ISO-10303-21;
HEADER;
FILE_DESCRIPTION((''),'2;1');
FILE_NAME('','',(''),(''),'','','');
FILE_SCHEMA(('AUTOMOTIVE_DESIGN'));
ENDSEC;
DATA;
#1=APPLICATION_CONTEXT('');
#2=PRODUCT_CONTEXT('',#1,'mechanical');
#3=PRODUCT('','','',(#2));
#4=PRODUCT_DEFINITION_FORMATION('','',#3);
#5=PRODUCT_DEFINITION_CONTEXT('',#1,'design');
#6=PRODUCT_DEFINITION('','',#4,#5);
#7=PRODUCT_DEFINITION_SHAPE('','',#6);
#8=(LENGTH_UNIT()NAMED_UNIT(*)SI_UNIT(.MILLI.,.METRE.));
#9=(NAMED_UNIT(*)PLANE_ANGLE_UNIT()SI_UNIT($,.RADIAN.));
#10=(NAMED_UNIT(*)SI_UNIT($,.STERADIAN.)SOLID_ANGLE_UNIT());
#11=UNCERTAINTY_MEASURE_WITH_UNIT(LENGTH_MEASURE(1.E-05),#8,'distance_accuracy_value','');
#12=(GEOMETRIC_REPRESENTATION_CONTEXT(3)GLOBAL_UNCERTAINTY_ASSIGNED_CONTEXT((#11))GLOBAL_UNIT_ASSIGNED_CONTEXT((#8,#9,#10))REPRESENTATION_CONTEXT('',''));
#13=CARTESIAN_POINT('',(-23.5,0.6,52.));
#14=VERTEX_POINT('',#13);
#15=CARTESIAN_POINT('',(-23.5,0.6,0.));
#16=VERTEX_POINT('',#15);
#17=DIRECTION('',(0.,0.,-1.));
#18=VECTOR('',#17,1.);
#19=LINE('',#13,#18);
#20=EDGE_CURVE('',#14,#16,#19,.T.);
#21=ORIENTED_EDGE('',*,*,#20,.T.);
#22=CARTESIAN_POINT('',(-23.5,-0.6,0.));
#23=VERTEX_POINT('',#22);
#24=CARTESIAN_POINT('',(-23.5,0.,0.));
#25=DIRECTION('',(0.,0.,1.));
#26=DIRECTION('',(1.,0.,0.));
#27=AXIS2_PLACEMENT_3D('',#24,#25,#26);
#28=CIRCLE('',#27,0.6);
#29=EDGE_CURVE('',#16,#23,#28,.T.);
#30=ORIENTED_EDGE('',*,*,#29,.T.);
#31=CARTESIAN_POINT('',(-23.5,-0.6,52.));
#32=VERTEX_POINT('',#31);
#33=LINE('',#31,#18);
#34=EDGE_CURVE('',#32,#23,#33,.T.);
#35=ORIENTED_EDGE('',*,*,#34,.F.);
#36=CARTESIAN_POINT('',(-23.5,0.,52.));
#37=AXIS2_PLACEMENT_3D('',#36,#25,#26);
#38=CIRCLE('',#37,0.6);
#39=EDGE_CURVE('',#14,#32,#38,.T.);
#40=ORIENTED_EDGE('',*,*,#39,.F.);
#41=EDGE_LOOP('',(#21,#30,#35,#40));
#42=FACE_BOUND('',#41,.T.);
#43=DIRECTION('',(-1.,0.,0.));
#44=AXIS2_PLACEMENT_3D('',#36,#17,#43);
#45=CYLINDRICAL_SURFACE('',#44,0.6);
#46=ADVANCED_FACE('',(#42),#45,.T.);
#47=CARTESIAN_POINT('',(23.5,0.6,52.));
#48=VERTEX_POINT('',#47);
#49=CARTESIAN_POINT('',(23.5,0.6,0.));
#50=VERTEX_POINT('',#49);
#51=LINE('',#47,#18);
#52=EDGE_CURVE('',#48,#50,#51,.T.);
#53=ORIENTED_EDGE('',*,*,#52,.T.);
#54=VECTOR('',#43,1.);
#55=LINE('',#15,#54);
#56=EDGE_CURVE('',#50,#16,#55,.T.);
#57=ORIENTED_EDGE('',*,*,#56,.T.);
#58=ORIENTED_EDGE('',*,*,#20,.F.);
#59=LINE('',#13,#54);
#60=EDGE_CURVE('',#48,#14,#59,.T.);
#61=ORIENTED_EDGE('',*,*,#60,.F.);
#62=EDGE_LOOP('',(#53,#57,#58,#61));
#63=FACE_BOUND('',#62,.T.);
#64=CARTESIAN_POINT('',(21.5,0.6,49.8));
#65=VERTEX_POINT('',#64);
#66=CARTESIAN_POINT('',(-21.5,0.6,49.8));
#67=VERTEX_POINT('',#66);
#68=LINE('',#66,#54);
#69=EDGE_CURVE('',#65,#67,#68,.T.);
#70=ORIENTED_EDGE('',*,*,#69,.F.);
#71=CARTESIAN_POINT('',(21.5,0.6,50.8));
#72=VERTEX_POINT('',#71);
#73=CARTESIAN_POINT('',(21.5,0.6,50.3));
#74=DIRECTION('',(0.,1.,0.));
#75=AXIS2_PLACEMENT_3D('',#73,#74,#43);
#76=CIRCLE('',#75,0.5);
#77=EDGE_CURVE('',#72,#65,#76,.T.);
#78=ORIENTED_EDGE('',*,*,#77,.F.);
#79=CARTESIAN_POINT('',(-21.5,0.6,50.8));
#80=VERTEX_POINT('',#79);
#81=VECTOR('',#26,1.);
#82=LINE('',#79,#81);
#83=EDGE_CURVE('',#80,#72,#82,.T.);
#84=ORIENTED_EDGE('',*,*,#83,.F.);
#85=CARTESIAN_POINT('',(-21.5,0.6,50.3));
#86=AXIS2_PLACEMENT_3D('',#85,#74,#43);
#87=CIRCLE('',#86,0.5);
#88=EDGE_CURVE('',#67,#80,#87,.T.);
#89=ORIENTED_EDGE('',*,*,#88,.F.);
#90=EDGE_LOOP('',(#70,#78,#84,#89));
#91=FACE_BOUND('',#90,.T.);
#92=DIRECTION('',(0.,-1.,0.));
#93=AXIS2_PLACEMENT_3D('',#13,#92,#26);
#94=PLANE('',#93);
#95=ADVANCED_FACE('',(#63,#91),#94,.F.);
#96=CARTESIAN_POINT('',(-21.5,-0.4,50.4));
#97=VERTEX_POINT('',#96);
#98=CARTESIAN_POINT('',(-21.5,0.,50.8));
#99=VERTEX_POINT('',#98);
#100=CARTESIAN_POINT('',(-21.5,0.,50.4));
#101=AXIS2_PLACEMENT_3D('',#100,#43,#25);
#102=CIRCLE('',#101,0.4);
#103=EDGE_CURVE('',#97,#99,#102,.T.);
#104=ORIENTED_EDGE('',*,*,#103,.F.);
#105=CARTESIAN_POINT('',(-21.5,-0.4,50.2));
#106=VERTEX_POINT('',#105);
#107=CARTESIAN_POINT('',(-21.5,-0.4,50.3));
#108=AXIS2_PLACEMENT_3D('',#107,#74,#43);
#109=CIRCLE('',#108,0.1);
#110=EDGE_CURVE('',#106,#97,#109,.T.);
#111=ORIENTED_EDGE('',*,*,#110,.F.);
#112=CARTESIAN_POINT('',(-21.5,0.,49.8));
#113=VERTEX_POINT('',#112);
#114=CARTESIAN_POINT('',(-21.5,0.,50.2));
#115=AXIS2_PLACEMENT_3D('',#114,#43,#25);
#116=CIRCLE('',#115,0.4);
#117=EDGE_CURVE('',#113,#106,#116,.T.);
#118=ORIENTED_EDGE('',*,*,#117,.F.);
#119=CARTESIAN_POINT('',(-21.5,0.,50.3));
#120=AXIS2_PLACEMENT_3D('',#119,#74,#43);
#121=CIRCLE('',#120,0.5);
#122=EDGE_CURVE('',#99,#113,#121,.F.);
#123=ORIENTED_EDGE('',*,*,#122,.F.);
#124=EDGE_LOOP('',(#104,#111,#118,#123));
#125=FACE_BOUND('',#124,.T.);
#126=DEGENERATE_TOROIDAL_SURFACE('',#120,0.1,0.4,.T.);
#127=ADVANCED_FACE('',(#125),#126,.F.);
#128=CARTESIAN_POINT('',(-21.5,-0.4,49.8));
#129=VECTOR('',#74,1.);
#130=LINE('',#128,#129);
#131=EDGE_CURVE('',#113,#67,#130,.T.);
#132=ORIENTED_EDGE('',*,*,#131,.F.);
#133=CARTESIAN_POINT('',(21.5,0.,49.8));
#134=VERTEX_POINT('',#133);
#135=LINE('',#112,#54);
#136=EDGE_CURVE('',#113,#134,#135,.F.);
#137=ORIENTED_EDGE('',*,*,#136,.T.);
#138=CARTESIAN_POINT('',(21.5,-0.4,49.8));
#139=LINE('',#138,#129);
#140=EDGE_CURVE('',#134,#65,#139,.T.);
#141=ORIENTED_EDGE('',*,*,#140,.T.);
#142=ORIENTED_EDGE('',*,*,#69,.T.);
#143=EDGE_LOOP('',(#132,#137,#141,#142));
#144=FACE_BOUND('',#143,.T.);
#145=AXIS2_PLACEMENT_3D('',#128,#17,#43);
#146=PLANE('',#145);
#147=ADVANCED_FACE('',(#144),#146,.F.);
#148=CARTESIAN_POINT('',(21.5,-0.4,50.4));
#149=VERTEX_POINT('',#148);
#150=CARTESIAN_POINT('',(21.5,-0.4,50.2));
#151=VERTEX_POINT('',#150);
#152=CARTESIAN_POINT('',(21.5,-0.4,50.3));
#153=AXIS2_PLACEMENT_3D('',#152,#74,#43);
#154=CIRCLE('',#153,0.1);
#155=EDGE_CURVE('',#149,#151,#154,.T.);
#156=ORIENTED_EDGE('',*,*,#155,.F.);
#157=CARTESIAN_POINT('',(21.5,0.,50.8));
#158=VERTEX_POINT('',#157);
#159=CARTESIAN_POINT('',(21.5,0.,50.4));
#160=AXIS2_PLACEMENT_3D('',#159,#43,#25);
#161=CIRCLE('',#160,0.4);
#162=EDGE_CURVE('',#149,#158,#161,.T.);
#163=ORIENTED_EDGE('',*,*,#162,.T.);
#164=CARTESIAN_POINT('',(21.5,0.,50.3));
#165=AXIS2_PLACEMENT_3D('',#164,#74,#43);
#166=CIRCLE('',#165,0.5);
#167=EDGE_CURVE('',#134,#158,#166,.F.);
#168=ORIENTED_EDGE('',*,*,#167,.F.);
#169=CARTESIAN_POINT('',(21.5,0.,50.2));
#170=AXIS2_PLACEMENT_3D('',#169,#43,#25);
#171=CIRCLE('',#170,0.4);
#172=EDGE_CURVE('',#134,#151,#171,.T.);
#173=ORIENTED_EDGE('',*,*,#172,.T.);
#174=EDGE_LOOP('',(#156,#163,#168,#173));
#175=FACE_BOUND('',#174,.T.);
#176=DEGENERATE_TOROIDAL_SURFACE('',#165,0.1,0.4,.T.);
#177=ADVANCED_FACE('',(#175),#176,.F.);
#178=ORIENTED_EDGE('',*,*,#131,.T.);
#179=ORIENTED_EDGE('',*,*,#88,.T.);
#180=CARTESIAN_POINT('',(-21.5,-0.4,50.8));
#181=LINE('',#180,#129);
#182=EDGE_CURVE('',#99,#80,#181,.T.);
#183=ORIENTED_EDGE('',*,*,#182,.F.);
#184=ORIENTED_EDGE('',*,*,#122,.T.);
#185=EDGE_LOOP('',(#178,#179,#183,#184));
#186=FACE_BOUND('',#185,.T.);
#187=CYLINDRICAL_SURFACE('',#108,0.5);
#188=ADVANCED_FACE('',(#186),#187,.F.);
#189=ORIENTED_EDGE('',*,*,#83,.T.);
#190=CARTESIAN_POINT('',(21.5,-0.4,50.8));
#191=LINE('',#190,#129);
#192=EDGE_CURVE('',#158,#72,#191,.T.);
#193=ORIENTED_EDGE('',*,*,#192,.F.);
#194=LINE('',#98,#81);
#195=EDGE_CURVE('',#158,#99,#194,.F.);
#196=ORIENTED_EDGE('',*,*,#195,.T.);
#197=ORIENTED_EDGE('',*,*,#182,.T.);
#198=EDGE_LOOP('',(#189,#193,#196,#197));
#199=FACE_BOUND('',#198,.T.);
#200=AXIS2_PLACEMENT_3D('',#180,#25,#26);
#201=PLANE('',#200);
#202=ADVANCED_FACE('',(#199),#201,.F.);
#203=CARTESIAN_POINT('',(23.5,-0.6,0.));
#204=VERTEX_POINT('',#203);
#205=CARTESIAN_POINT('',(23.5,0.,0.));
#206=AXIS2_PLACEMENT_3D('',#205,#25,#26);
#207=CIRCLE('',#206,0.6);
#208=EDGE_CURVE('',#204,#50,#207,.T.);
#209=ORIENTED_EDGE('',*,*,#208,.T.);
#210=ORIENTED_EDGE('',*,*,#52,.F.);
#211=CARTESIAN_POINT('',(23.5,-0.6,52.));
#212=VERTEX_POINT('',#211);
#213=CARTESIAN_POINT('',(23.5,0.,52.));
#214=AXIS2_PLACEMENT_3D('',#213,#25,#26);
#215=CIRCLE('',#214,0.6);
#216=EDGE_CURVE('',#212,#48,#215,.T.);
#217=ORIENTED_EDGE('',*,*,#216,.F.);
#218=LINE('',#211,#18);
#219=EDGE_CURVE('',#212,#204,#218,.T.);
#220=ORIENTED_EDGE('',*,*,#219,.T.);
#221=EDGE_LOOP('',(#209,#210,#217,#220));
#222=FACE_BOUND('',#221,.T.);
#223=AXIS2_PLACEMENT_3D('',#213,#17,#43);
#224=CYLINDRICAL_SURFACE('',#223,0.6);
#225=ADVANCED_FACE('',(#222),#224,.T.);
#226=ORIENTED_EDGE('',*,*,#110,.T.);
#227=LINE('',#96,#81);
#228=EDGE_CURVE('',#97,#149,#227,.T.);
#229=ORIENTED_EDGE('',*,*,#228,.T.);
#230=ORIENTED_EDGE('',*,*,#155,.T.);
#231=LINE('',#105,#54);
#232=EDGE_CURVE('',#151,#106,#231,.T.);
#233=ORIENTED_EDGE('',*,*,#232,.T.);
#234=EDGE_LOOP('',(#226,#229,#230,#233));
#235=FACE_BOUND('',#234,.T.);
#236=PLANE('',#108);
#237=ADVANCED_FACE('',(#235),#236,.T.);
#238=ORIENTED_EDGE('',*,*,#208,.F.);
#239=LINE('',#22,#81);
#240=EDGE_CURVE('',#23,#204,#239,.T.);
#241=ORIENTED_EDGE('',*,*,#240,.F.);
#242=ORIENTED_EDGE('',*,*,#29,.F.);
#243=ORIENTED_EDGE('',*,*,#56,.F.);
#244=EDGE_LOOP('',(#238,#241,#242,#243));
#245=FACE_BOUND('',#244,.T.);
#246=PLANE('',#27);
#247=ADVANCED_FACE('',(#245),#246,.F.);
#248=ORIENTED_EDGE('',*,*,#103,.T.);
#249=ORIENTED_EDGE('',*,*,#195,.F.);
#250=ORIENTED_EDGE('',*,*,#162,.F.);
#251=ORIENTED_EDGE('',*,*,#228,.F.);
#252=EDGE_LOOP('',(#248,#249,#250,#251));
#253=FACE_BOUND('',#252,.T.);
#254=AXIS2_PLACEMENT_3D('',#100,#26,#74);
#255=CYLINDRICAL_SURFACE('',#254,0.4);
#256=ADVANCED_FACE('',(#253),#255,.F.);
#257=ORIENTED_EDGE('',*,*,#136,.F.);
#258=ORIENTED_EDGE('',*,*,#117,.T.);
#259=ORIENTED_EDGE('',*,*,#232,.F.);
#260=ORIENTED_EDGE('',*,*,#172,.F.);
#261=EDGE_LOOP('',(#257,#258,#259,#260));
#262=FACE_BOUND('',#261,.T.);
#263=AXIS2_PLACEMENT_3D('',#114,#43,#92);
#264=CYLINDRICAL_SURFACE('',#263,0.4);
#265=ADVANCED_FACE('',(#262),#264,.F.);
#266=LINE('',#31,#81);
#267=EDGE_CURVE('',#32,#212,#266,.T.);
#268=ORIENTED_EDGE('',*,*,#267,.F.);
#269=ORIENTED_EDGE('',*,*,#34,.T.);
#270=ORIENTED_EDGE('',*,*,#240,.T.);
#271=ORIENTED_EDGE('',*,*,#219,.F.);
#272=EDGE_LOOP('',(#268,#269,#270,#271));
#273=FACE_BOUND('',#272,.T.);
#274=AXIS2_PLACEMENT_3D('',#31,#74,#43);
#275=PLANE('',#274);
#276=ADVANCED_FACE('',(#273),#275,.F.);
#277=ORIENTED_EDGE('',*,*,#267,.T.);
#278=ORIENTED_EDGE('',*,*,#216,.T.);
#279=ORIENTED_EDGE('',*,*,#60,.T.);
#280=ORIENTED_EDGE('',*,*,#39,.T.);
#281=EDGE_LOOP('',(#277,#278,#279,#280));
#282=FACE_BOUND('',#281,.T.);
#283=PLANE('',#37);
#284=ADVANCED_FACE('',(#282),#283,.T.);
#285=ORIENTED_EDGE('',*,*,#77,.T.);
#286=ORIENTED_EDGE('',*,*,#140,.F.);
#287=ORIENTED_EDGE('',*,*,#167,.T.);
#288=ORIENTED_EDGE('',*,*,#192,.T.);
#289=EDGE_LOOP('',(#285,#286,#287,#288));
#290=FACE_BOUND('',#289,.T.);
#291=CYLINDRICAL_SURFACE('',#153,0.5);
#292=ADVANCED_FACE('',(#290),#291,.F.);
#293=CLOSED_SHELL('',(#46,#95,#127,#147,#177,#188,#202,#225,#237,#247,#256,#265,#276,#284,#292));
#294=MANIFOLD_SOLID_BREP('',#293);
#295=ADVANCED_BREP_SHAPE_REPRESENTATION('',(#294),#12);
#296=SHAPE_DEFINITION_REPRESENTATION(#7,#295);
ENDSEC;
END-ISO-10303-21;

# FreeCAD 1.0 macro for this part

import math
import FreeCAD as App
import Part
import Sketcher
from FreeCAD import Vector


def edges_at(feature, points):
    """Names of the edges that pass closest to the given points."""
    edges = feature.Shape.Edges
    near = lambda p: min(range(len(edges)), key=lambda i: edges[i].distToShape(Part.Vertex(*p))[0])
    return sorted({f"Edge{near(p) + 1}" for p in points})

doc = App.newDocument("Part")
params = doc.addObject("Spreadsheet::Sheet", "Params")
for row, (alias, value) in enumerate([
    ("sketch1_radius", "0.6 mm"),
    ("sketch1_width", "47 mm"),
    ("pad1_length", "52 mm"),
    ("sketch2_radius", "0.5 mm"),
    ("sketch2_width", "43 mm"),
    ("pocket1_length", "1 mm"),
    ("fillet_radius", "0.4 mm"),
], start=1):
    params.set(f"A{row}", alias)
    params.set(f"B{row}", "=" + value)
    params.setAlias(f"B{row}", alias)

body = doc.addObject("PartDesign::Body", "Body")

sketch1 = body.newObject("Sketcher::SketchObject", "Sketch")
sketch1.AttachmentSupport = (doc.getObject("XY_Plane"), [""])
sketch1.MapMode = "FlatFace"
sketch1.addGeometry(Part.LineSegment(Vector(23.5, 0.6, 0), Vector(-23.5, 0.6, 0)), False)
sketch1.addGeometry(Part.ArcOfCircle(Part.Circle(Vector(-23.5, 0, 0), Vector(0, 0, 1), 0.6), math.radians(90), math.radians(270)), False)
sketch1.addGeometry(Part.LineSegment(Vector(-23.5, -0.6, 0), Vector(23.5, -0.6, 0)), False)
sketch1.addGeometry(Part.ArcOfCircle(Part.Circle(Vector(23.5, 0, 0), Vector(0, 0, 1), 0.6), math.radians(-90), math.radians(90)), False)
sketch1.addConstraint(Sketcher.Constraint("Tangent", 0, 2, 1, 1))
sketch1.addConstraint(Sketcher.Constraint("Tangent", 1, 2, 2, 1))
sketch1.addConstraint(Sketcher.Constraint("Tangent", 2, 2, 3, 1))
sketch1.addConstraint(Sketcher.Constraint("Tangent", 3, 2, 0, 1))
sketch1.addConstraint(Sketcher.Constraint("Horizontal", 0))
sketch1.addConstraint(Sketcher.Constraint("Horizontal", 2))
sketch1.addConstraint(Sketcher.Constraint("Symmetric", 1, 3, 3, 3, -1, 1))
sketch1.addConstraint(Sketcher.Constraint("Radius", 1, 0.6))
sketch1.addConstraint(Sketcher.Constraint("DistanceX", 0, 2, 0, 1, 47.0))
sketch1.setExpression("Constraints[7]", "Params.sketch1_radius")
sketch1.setExpression("Constraints[8]", "Params.sketch1_width")
pad1 = body.newObject("PartDesign::Pad", "Pad")
pad1.Profile = sketch1
pad1.setExpression("Length", "Params.pad1_length")

sketch2 = body.newObject("Sketcher::SketchObject", "Sketch001")
sketch2.AttachmentSupport = (doc.getObject("XZ_Plane"), [""])
sketch2.MapMode = "FlatFace"
sketch2.AttachmentOffset = App.Placement(Vector(0, 0, -0.6), App.Rotation())
sketch2.addGeometry(Part.LineSegment(Vector(21.5, 49.8, 0), Vector(-21.5, 49.8, 0)), False)
sketch2.addGeometry(Part.ArcOfCircle(Part.Circle(Vector(-21.5, 50.3, 0), Vector(0, 0, 1), 0.5), math.radians(90), math.radians(270)), False)
sketch2.addGeometry(Part.LineSegment(Vector(-21.5, 50.8, 0), Vector(21.5, 50.8, 0)), False)
sketch2.addGeometry(Part.ArcOfCircle(Part.Circle(Vector(21.5, 50.3, 0), Vector(0, 0, 1), 0.5), math.radians(-90), math.radians(90)), False)
sketch2.addConstraint(Sketcher.Constraint("Tangent", 0, 2, 1, 2))
sketch2.addConstraint(Sketcher.Constraint("Tangent", 1, 1, 2, 1))
sketch2.addConstraint(Sketcher.Constraint("Tangent", 2, 2, 3, 2))
sketch2.addConstraint(Sketcher.Constraint("Tangent", 3, 1, 0, 1))
sketch2.addConstraint(Sketcher.Constraint("Horizontal", 0))
sketch2.addConstraint(Sketcher.Constraint("Horizontal", 2))
sketch2.addConstraint(Sketcher.Constraint("Radius", 1, 0.5))
sketch2.addConstraint(Sketcher.Constraint("DistanceX", 0, 2, 0, 1, 43.0))
sketch2.addConstraint(Sketcher.Constraint("DistanceX", 1, 3, -1, 1, 21.5))
sketch2.addConstraint(Sketcher.Constraint("DistanceY", -1, 1, 1, 3, 50.3))
sketch2.setExpression("Constraints[6]", "Params.sketch2_radius")
sketch2.setExpression("Constraints[7]", "Params.sketch2_width")
pocket1 = body.newObject("PartDesign::Pocket", "Pocket")
pocket1.Profile = sketch2
pocket1.setExpression("Length", "Params.pocket1_length")
pocket1.Reversed = True
doc.recompute()

fillet = body.newObject("PartDesign::Fillet", "Fillet")
fillet.Base = (pocket1, edges_at(pocket1, [
    (-22, -0.4, 50.3),
    (0, -0.4, 49.8),
    (22, -0.4, 50.3),
    (0, -0.4, 50.8),
]))
fillet.setExpression("Radius", "Params.fillet_radius")

doc.recompute()
